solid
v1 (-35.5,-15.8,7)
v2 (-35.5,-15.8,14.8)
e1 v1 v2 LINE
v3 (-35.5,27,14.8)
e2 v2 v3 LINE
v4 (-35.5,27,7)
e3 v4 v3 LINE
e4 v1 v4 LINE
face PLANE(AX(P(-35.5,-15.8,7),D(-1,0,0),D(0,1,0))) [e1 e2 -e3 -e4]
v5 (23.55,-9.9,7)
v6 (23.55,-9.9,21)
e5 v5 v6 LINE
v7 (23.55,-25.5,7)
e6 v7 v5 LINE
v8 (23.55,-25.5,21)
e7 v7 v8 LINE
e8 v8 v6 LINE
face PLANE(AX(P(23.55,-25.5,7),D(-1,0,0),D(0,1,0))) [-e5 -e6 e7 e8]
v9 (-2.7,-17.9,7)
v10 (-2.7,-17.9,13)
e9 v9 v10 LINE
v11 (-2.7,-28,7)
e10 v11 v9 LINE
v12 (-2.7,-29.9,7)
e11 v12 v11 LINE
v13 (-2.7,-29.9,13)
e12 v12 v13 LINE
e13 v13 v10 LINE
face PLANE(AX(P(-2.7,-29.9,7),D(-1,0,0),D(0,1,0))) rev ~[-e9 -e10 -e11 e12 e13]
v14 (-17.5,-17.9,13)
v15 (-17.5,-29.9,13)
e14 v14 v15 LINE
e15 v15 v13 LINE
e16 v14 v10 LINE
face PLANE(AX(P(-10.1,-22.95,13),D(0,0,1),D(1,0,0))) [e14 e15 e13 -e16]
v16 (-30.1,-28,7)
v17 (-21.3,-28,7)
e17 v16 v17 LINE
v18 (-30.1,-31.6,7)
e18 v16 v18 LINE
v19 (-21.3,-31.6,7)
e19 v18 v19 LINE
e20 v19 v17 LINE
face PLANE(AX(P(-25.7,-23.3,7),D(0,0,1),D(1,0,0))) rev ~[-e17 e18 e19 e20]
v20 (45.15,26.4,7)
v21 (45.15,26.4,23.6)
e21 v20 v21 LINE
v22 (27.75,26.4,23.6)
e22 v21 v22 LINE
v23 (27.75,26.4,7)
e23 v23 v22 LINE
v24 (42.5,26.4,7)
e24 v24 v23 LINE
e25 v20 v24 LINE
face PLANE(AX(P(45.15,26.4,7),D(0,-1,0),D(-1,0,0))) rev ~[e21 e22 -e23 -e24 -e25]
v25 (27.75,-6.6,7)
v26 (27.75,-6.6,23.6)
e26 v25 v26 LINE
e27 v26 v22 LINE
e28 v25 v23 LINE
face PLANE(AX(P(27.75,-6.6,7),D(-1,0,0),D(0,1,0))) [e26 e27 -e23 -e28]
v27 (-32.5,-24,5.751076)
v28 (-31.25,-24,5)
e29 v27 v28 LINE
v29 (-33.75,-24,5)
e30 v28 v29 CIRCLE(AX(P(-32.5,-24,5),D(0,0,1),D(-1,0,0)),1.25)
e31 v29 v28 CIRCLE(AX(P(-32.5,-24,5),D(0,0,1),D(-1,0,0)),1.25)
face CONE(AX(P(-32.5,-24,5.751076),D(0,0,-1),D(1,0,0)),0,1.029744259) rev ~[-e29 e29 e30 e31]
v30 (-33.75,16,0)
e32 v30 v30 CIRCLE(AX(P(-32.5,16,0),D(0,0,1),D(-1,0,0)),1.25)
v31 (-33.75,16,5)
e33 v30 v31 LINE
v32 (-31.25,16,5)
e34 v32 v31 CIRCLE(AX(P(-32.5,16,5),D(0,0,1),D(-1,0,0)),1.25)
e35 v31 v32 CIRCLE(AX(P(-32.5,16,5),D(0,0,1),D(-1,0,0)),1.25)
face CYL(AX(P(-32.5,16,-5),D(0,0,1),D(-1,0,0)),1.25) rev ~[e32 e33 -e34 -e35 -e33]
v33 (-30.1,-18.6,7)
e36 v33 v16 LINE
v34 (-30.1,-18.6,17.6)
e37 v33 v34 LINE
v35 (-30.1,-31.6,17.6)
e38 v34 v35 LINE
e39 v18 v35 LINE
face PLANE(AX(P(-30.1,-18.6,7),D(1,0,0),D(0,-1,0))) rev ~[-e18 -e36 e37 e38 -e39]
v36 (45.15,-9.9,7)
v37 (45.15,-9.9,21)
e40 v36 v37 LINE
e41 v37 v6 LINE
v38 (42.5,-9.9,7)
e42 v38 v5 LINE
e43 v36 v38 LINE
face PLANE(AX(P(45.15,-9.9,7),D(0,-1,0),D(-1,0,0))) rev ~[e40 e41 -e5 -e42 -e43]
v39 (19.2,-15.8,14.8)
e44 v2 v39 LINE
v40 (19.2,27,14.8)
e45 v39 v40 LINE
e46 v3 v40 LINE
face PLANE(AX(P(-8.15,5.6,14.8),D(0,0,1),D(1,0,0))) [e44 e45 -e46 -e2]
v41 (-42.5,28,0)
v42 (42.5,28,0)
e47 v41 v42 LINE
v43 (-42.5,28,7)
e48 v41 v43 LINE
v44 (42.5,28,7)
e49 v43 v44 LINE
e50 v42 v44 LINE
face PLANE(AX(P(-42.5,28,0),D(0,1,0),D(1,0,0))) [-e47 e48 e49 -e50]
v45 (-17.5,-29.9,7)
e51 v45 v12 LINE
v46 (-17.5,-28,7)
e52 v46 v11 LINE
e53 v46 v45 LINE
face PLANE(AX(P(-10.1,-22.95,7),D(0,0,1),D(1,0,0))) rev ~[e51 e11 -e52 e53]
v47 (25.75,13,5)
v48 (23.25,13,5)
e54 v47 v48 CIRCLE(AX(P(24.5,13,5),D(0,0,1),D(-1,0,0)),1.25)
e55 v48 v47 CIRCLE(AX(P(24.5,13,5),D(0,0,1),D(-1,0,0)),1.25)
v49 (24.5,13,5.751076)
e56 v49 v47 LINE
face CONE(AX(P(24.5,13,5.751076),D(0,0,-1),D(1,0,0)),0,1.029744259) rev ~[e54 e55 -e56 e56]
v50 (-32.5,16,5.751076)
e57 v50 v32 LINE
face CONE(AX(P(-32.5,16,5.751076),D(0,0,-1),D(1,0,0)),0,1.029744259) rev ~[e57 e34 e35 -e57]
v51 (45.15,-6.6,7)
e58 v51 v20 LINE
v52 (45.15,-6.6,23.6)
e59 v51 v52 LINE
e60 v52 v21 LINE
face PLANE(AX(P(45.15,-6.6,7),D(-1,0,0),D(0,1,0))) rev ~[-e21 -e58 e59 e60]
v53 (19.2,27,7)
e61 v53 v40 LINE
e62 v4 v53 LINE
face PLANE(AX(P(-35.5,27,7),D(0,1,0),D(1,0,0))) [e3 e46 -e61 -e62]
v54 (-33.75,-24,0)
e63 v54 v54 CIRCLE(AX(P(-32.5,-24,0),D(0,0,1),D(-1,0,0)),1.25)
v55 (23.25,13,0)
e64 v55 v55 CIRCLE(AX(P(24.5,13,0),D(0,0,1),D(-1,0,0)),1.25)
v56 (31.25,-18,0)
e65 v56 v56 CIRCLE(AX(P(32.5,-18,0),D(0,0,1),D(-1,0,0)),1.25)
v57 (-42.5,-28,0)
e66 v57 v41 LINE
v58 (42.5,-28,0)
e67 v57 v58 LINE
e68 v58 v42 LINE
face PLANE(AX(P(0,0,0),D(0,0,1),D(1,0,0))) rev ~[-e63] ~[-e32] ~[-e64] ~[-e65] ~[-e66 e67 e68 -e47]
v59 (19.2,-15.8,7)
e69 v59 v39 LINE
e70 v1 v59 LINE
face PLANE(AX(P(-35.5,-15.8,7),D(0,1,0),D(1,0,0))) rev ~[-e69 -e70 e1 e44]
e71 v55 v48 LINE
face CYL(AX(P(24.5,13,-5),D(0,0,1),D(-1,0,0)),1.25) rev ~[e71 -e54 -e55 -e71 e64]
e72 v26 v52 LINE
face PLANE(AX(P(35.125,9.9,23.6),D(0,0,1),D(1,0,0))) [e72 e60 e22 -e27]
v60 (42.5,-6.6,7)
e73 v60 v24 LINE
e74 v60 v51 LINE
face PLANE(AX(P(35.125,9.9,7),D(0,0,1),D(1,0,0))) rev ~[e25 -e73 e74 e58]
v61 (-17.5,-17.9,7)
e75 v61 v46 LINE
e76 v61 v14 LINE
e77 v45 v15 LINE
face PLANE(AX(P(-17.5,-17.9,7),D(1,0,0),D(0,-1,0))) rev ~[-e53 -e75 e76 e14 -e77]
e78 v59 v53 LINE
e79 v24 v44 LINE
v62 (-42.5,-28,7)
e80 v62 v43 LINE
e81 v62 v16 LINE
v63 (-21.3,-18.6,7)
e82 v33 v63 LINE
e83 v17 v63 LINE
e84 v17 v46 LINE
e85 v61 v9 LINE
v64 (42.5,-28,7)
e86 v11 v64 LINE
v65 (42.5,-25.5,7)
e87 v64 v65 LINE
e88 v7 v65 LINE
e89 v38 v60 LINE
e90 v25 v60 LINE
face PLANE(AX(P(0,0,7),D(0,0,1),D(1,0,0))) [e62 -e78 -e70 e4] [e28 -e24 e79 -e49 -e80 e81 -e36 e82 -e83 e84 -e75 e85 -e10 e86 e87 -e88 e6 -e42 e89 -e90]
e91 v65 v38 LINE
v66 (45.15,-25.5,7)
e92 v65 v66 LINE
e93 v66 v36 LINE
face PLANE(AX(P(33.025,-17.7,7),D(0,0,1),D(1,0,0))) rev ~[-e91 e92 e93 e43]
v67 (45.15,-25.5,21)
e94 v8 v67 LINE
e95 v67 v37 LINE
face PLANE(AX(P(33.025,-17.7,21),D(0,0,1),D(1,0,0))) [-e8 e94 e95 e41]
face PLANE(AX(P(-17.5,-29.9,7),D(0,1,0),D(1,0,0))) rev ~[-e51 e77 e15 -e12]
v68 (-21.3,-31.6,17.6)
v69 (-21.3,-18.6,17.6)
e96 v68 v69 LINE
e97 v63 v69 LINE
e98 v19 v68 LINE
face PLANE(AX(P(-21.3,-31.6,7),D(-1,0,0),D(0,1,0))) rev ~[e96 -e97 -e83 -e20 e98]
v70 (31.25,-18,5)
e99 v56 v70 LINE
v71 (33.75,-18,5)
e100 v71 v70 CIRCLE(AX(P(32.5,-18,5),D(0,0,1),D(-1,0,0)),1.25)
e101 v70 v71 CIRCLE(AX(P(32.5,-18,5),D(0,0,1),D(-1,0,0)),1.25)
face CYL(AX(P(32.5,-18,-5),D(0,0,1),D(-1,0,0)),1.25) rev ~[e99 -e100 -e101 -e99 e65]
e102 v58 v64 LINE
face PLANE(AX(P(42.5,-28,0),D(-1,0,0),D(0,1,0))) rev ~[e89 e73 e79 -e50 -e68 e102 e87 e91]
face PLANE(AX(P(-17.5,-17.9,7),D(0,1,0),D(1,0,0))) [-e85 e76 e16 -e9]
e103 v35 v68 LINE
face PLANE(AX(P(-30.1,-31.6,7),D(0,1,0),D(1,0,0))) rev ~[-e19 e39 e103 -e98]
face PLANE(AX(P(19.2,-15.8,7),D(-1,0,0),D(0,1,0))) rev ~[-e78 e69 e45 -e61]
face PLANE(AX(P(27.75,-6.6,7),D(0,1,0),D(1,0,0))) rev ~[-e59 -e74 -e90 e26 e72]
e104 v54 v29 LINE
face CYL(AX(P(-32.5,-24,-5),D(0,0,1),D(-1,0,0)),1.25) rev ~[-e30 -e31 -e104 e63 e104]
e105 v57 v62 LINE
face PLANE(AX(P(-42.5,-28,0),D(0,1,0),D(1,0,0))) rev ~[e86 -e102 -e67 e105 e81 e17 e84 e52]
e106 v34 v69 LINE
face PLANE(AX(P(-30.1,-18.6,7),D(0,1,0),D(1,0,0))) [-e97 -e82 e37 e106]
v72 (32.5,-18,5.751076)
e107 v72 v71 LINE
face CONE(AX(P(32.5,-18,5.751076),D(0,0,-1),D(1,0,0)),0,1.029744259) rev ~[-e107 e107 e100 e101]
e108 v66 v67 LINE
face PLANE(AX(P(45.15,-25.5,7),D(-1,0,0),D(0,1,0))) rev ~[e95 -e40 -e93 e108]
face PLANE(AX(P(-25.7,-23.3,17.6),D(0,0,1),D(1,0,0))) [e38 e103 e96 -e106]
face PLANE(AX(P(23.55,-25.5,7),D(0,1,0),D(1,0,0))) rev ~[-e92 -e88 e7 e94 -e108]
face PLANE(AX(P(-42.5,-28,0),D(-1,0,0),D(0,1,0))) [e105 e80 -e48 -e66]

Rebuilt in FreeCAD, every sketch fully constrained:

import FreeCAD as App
import Part
import Sketcher

doc = App.newDocument("Part")
body = doc.addObject("PartDesign::Body", "Body")

# Sketch on XY plane
sketch1 = body.newObject("Sketcher::SketchObject", "Sketch")
sketch1.AttachmentSupport = (doc.getObject("XY_Plane"), [""])
sketch1.MapMode = "FlatFace"
sketch1.addGeometry([
    Part.LineSegment(App.Vector(-42, 28, 0), App.Vector(-42, -28, 0)),
    Part.LineSegment(App.Vector(-42, -28, 0), App.Vector(42, -28, 0)),
    Part.LineSegment(App.Vector(42, -28, 0), App.Vector(42, 28, 0)),
    Part.LineSegment(App.Vector(42, 28, 0), App.Vector(-42, 28, 0)),
], False)
sketch1.addConstraint([
    Sketcher.Constraint("Coincident", 0, 2, 1, 1),
    Sketcher.Constraint("Coincident", 1, 2, 2, 1),
    Sketcher.Constraint("Coincident", 2, 2, 3, 1),
    Sketcher.Constraint("Coincident", 3, 2, 0, 1),
    Sketcher.Constraint("Vertical", 0),
    Sketcher.Constraint("Horizontal", 1),
    Sketcher.Constraint("Vertical", 2),
    Sketcher.Constraint("Horizontal", 3),
    Sketcher.Constraint("Symmetric", 0, 2, 2, 2, -1, 1),
    Sketcher.Constraint("DistanceX", 1, 1, 1, 2, 85.0),
    Sketcher.Constraint("DistanceY", 0, 2, 0, 1, 56.0),
])
pad1 = body.newObject("PartDesign::Pad", "Pad")
pad1.Profile = sketch1
pad1.Length = 7

# Sketch on XY plane
sketch2 = body.newObject("Sketcher::SketchObject", "Sketch001")
sketch2.AttachmentSupport = (doc.getObject("XY_Plane"), [""])
sketch2.MapMode = "FlatFace"
sketch2.AttachmentOffset = App.Placement(App.Vector(0, 0, 7), App.Rotation())
sketch2.addGeometry([
    Part.LineSegment(App.Vector(28, 26, 0), App.Vector(28, -7, 0)),
    Part.LineSegment(App.Vector(28, -7, 0), App.Vector(45, -7, 0)),
    Part.LineSegment(App.Vector(45, -7, 0), App.Vector(45, 26, 0)),
    Part.LineSegment(App.Vector(45, 26, 0), App.Vector(28, 26, 0)),
], False)
sketch2.addConstraint([
    Sketcher.Constraint("Coincident", 0, 2, 1, 1),
    Sketcher.Constraint("Coincident", 1, 2, 2, 1),
    Sketcher.Constraint("Coincident", 2, 2, 3, 1),
    Sketcher.Constraint("Coincident", 3, 2, 0, 1),
    Sketcher.Constraint("Vertical", 0),
    Sketcher.Constraint("Horizontal", 1),
    Sketcher.Constraint("Vertical", 2),
    Sketcher.Constraint("Horizontal", 3),
    Sketcher.Constraint("DistanceY", 0, 2, 0, 1, 33.0),
    Sketcher.Constraint("DistanceX", 1, 1, 1, 2, 17.4),
    Sketcher.Constraint("DistanceY", 0, 2, -1, 1, 6.6),
    Sketcher.Constraint("DistanceX", -1, 1, 0, 2, 27.75),
])
pad2 = body.newObject("PartDesign::Pad", "Pad001")
pad2.Profile = sketch2
pad2.Length = 16.6

# Sketch on XY plane
sketch3 = body.newObject("Sketcher::SketchObject", "Sketch002")
sketch3.AttachmentSupport = (doc.getObject("XY_Plane"), [""])
sketch3.MapMode = "FlatFace"
sketch3.AttachmentOffset = App.Placement(App.Vector(0, 0, 7), App.Rotation())
sketch3.addGeometry([
    Part.LineSegment(App.Vector(24, -10, 0), App.Vector(24, -26, 0)),
    Part.LineSegment(App.Vector(24, -26, 0), App.Vector(45, -26, 0)),
    Part.LineSegment(App.Vector(45, -26, 0), App.Vector(45, -10, 0)),
    Part.LineSegment(App.Vector(45, -10, 0), App.Vector(24, -10, 0)),
], False)
sketch3.addConstraint([
    Sketcher.Constraint("Coincident", 0, 2, 1, 1),
    Sketcher.Constraint("Coincident", 1, 2, 2, 1),
    Sketcher.Constraint("Coincident", 2, 2, 3, 1),
    Sketcher.Constraint("Coincident", 3, 2, 0, 1),
    Sketcher.Constraint("Vertical", 0),
    Sketcher.Constraint("Horizontal", 1),
    Sketcher.Constraint("Vertical", 2),
    Sketcher.Constraint("Horizontal", 3),
    Sketcher.Constraint("DistanceX", 1, 1, 1, 2, 21.6),
    Sketcher.Constraint("DistanceY", 0, 2, 0, 1, 15.6),
    Sketcher.Constraint("DistanceY", 0, 2, -1, 1, 25.5),
    Sketcher.Constraint("DistanceX", -1, 1, 0, 2, 23.55),
])
pad3 = body.newObject("PartDesign::Pad", "Pad002")
pad3.Profile = sketch3
pad3.Length = 14

# Sketch on XY plane
sketch4 = body.newObject("Sketcher::SketchObject", "Sketch003")
sketch4.AttachmentSupport = (doc.getObject("XY_Plane"), [""])
sketch4.MapMode = "FlatFace"
sketch4.AttachmentOffset = App.Placement(App.Vector(0, 0, 7), App.Rotation())
sketch4.addGeometry([
    Part.LineSegment(App.Vector(-18, -18, 0), App.Vector(-18, -30, 0)),
    Part.LineSegment(App.Vector(-18, -30, 0), App.Vector(-3, -30, 0)),
    Part.LineSegment(App.Vector(-3, -30, 0), App.Vector(-3, -18, 0)),
    Part.LineSegment(App.Vector(-3, -18, 0), App.Vector(-18, -18, 0)),
], False)
sketch4.addConstraint([
    Sketcher.Constraint("Coincident", 0, 2, 1, 1),
    Sketcher.Constraint("Coincident", 1, 2, 2, 1),
    Sketcher.Constraint("Coincident", 2, 2, 3, 1),
    Sketcher.Constraint("Coincident", 3, 2, 0, 1),
    Sketcher.Constraint("Vertical", 0),
    Sketcher.Constraint("Horizontal", 1),
    Sketcher.Constraint("Vertical", 2),
    Sketcher.Constraint("Horizontal", 3),
    Sketcher.Constraint("DistanceY", 0, 2, 0, 1, 12.0),
    Sketcher.Constraint("DistanceX", 1, 1, 1, 2, 14.8),
    Sketcher.Constraint("DistanceX", 0, 2, -1, 1, 17.5),
    Sketcher.Constraint("DistanceY", 0, 2, -1, 1, 29.9),
])
pad4 = body.newObject("PartDesign::Pad", "Pad003")
pad4.Profile = sketch4
pad4.Length = 6

# Sketch on XY plane
sketch5 = body.newObject("Sketcher::SketchObject", "Sketch004")
sketch5.AttachmentSupport = (doc.getObject("XY_Plane"), [""])
sketch5.MapMode = "FlatFace"
sketch5.AttachmentOffset = App.Placement(App.Vector(0, 0, 7), App.Rotation())
sketch5.addGeometry([
    Part.LineSegment(App.Vector(-30, -19, 0), App.Vector(-30, -32, 0)),
    Part.LineSegment(App.Vector(-30, -32, 0), App.Vector(-21, -32, 0)),
    Part.LineSegment(App.Vector(-21, -32, 0), App.Vector(-21, -19, 0)),
    Part.LineSegment(App.Vector(-21, -19, 0), App.Vector(-30, -19, 0)),
], False)
sketch5.addConstraint([
    Sketcher.Constraint("Coincident", 0, 2, 1, 1),
    Sketcher.Constraint("Coincident", 1, 2, 2, 1),
    Sketcher.Constraint("Coincident", 2, 2, 3, 1),
    Sketcher.Constraint("Coincident", 3, 2, 0, 1),
    Sketcher.Constraint("Vertical", 0),
    Sketcher.Constraint("Horizontal", 1),
    Sketcher.Constraint("Vertical", 2),
    Sketcher.Constraint("Horizontal", 3),
    Sketcher.Constraint("DistanceY", 0, 2, 0, 1, 13.0),
    Sketcher.Constraint("DistanceX", 1, 1, 1, 2, 8.8),
    Sketcher.Constraint("DistanceX", 0, 2, -1, 1, 30.1),
    Sketcher.Constraint("DistanceY", 0, 2, -1, 1, 31.6),
])
pad5 = body.newObject("PartDesign::Pad", "Pad004")
pad5.Profile = sketch5
pad5.Length = 10.6

# Sketch on XY plane
sketch6 = body.newObject("Sketcher::SketchObject", "Sketch005")
sketch6.AttachmentSupport = (doc.getObject("XY_Plane"), [""])
sketch6.MapMode = "FlatFace"
sketch6.AttachmentOffset = App.Placement(App.Vector(0, 0, 7), App.Rotation())
sketch6.addGeometry([
    Part.LineSegment(App.Vector(-36, 27, 0), App.Vector(-36, -16, 0)),
    Part.LineSegment(App.Vector(-36, -16, 0), App.Vector(19, -16, 0)),
    Part.LineSegment(App.Vector(19, -16, 0), App.Vector(19, 27, 0)),
    Part.LineSegment(App.Vector(19, 27, 0), App.Vector(-36, 27, 0)),
], False)
sketch6.addConstraint([
    Sketcher.Constraint("Coincident", 0, 2, 1, 1),
    Sketcher.Constraint("Coincident", 1, 2, 2, 1),
    Sketcher.Constraint("Coincident", 2, 2, 3, 1),
    Sketcher.Constraint("Coincident", 3, 2, 0, 1),
    Sketcher.Constraint("Vertical", 0),
    Sketcher.Constraint("Horizontal", 1),
    Sketcher.Constraint("Vertical", 2),
    Sketcher.Constraint("Horizontal", 3),
    Sketcher.Constraint("DistanceX", 1, 1, 1, 2, 54.7),
    Sketcher.Constraint("DistanceY", 0, 2, 0, 1, 42.8),
    Sketcher.Constraint("DistanceY", -1, 1, 2, 2, 27.0),
    Sketcher.Constraint("DistanceX", 0, 2, -1, 1, 35.5),
])
pad6 = body.newObject("PartDesign::Pad", "Pad005")
pad6.Profile = sketch6
pad6.Length = 7.8

# Sketch on XY plane
sketch7 = body.newObject("Sketcher::SketchObject", "Sketch006")
sketch7.AttachmentSupport = (doc.getObject("XY_Plane"), [""])
sketch7.MapMode = "FlatFace"
sketch7.addGeometry([
    Part.Circle(App.Vector(-32.5, -24, 0), App.Vector(0, 0, 1), 1.2),
    Part.Circle(App.Vector(32.5, -18, 0), App.Vector(0, 0, 1), 1.2),
    Part.Circle(App.Vector(24.5, 13, 0), App.Vector(0, 0, 1), 1.2),
    Part.Circle(App.Vector(-32.5, 16, 0), App.Vector(0, 0, 1), 1.2),
], False)
sketch7.addConstraint([
    Sketcher.Constraint("Equal", 0, 1),
    Sketcher.Constraint("Equal", 1, 2),
    Sketcher.Constraint("Equal", 2, 3),
    Sketcher.Constraint("Vertical", 0, 3, 3, 3),
    Sketcher.Constraint("Diameter", 0, 2.5),
    Sketcher.Constraint("DistanceY", 0, 3, -1, 1, 24.0),
    Sketcher.Constraint("DistanceY", 1, 3, -1, 1, 18.0),
    Sketcher.Constraint("DistanceY", -1, 1, 2, 3, 13.0),
    Sketcher.Constraint("DistanceY", -1, 1, 3, 3, 16.0),
    Sketcher.Constraint("DistanceX", 0, 3, 1, 3, 65.0),
    Sketcher.Constraint("DistanceX", 2, 3, 1, 3, 8.0),
    Sketcher.Constraint("DistanceX", 0, 3, -1, 1, 32.5),
])
doc.recompute()
hole = body.newObject("PartDesign::Hole", "Hole")
hole.Profile = sketch7
hole.ThreadType = "None"
hole.Diameter = 2.5
hole.DepthType = "Dimension"
hole.Depth = 5
hole.DrillPoint = "Angled"
hole.DrillPointAngle = 118
hole.Reversed = True

doc.recompute()
